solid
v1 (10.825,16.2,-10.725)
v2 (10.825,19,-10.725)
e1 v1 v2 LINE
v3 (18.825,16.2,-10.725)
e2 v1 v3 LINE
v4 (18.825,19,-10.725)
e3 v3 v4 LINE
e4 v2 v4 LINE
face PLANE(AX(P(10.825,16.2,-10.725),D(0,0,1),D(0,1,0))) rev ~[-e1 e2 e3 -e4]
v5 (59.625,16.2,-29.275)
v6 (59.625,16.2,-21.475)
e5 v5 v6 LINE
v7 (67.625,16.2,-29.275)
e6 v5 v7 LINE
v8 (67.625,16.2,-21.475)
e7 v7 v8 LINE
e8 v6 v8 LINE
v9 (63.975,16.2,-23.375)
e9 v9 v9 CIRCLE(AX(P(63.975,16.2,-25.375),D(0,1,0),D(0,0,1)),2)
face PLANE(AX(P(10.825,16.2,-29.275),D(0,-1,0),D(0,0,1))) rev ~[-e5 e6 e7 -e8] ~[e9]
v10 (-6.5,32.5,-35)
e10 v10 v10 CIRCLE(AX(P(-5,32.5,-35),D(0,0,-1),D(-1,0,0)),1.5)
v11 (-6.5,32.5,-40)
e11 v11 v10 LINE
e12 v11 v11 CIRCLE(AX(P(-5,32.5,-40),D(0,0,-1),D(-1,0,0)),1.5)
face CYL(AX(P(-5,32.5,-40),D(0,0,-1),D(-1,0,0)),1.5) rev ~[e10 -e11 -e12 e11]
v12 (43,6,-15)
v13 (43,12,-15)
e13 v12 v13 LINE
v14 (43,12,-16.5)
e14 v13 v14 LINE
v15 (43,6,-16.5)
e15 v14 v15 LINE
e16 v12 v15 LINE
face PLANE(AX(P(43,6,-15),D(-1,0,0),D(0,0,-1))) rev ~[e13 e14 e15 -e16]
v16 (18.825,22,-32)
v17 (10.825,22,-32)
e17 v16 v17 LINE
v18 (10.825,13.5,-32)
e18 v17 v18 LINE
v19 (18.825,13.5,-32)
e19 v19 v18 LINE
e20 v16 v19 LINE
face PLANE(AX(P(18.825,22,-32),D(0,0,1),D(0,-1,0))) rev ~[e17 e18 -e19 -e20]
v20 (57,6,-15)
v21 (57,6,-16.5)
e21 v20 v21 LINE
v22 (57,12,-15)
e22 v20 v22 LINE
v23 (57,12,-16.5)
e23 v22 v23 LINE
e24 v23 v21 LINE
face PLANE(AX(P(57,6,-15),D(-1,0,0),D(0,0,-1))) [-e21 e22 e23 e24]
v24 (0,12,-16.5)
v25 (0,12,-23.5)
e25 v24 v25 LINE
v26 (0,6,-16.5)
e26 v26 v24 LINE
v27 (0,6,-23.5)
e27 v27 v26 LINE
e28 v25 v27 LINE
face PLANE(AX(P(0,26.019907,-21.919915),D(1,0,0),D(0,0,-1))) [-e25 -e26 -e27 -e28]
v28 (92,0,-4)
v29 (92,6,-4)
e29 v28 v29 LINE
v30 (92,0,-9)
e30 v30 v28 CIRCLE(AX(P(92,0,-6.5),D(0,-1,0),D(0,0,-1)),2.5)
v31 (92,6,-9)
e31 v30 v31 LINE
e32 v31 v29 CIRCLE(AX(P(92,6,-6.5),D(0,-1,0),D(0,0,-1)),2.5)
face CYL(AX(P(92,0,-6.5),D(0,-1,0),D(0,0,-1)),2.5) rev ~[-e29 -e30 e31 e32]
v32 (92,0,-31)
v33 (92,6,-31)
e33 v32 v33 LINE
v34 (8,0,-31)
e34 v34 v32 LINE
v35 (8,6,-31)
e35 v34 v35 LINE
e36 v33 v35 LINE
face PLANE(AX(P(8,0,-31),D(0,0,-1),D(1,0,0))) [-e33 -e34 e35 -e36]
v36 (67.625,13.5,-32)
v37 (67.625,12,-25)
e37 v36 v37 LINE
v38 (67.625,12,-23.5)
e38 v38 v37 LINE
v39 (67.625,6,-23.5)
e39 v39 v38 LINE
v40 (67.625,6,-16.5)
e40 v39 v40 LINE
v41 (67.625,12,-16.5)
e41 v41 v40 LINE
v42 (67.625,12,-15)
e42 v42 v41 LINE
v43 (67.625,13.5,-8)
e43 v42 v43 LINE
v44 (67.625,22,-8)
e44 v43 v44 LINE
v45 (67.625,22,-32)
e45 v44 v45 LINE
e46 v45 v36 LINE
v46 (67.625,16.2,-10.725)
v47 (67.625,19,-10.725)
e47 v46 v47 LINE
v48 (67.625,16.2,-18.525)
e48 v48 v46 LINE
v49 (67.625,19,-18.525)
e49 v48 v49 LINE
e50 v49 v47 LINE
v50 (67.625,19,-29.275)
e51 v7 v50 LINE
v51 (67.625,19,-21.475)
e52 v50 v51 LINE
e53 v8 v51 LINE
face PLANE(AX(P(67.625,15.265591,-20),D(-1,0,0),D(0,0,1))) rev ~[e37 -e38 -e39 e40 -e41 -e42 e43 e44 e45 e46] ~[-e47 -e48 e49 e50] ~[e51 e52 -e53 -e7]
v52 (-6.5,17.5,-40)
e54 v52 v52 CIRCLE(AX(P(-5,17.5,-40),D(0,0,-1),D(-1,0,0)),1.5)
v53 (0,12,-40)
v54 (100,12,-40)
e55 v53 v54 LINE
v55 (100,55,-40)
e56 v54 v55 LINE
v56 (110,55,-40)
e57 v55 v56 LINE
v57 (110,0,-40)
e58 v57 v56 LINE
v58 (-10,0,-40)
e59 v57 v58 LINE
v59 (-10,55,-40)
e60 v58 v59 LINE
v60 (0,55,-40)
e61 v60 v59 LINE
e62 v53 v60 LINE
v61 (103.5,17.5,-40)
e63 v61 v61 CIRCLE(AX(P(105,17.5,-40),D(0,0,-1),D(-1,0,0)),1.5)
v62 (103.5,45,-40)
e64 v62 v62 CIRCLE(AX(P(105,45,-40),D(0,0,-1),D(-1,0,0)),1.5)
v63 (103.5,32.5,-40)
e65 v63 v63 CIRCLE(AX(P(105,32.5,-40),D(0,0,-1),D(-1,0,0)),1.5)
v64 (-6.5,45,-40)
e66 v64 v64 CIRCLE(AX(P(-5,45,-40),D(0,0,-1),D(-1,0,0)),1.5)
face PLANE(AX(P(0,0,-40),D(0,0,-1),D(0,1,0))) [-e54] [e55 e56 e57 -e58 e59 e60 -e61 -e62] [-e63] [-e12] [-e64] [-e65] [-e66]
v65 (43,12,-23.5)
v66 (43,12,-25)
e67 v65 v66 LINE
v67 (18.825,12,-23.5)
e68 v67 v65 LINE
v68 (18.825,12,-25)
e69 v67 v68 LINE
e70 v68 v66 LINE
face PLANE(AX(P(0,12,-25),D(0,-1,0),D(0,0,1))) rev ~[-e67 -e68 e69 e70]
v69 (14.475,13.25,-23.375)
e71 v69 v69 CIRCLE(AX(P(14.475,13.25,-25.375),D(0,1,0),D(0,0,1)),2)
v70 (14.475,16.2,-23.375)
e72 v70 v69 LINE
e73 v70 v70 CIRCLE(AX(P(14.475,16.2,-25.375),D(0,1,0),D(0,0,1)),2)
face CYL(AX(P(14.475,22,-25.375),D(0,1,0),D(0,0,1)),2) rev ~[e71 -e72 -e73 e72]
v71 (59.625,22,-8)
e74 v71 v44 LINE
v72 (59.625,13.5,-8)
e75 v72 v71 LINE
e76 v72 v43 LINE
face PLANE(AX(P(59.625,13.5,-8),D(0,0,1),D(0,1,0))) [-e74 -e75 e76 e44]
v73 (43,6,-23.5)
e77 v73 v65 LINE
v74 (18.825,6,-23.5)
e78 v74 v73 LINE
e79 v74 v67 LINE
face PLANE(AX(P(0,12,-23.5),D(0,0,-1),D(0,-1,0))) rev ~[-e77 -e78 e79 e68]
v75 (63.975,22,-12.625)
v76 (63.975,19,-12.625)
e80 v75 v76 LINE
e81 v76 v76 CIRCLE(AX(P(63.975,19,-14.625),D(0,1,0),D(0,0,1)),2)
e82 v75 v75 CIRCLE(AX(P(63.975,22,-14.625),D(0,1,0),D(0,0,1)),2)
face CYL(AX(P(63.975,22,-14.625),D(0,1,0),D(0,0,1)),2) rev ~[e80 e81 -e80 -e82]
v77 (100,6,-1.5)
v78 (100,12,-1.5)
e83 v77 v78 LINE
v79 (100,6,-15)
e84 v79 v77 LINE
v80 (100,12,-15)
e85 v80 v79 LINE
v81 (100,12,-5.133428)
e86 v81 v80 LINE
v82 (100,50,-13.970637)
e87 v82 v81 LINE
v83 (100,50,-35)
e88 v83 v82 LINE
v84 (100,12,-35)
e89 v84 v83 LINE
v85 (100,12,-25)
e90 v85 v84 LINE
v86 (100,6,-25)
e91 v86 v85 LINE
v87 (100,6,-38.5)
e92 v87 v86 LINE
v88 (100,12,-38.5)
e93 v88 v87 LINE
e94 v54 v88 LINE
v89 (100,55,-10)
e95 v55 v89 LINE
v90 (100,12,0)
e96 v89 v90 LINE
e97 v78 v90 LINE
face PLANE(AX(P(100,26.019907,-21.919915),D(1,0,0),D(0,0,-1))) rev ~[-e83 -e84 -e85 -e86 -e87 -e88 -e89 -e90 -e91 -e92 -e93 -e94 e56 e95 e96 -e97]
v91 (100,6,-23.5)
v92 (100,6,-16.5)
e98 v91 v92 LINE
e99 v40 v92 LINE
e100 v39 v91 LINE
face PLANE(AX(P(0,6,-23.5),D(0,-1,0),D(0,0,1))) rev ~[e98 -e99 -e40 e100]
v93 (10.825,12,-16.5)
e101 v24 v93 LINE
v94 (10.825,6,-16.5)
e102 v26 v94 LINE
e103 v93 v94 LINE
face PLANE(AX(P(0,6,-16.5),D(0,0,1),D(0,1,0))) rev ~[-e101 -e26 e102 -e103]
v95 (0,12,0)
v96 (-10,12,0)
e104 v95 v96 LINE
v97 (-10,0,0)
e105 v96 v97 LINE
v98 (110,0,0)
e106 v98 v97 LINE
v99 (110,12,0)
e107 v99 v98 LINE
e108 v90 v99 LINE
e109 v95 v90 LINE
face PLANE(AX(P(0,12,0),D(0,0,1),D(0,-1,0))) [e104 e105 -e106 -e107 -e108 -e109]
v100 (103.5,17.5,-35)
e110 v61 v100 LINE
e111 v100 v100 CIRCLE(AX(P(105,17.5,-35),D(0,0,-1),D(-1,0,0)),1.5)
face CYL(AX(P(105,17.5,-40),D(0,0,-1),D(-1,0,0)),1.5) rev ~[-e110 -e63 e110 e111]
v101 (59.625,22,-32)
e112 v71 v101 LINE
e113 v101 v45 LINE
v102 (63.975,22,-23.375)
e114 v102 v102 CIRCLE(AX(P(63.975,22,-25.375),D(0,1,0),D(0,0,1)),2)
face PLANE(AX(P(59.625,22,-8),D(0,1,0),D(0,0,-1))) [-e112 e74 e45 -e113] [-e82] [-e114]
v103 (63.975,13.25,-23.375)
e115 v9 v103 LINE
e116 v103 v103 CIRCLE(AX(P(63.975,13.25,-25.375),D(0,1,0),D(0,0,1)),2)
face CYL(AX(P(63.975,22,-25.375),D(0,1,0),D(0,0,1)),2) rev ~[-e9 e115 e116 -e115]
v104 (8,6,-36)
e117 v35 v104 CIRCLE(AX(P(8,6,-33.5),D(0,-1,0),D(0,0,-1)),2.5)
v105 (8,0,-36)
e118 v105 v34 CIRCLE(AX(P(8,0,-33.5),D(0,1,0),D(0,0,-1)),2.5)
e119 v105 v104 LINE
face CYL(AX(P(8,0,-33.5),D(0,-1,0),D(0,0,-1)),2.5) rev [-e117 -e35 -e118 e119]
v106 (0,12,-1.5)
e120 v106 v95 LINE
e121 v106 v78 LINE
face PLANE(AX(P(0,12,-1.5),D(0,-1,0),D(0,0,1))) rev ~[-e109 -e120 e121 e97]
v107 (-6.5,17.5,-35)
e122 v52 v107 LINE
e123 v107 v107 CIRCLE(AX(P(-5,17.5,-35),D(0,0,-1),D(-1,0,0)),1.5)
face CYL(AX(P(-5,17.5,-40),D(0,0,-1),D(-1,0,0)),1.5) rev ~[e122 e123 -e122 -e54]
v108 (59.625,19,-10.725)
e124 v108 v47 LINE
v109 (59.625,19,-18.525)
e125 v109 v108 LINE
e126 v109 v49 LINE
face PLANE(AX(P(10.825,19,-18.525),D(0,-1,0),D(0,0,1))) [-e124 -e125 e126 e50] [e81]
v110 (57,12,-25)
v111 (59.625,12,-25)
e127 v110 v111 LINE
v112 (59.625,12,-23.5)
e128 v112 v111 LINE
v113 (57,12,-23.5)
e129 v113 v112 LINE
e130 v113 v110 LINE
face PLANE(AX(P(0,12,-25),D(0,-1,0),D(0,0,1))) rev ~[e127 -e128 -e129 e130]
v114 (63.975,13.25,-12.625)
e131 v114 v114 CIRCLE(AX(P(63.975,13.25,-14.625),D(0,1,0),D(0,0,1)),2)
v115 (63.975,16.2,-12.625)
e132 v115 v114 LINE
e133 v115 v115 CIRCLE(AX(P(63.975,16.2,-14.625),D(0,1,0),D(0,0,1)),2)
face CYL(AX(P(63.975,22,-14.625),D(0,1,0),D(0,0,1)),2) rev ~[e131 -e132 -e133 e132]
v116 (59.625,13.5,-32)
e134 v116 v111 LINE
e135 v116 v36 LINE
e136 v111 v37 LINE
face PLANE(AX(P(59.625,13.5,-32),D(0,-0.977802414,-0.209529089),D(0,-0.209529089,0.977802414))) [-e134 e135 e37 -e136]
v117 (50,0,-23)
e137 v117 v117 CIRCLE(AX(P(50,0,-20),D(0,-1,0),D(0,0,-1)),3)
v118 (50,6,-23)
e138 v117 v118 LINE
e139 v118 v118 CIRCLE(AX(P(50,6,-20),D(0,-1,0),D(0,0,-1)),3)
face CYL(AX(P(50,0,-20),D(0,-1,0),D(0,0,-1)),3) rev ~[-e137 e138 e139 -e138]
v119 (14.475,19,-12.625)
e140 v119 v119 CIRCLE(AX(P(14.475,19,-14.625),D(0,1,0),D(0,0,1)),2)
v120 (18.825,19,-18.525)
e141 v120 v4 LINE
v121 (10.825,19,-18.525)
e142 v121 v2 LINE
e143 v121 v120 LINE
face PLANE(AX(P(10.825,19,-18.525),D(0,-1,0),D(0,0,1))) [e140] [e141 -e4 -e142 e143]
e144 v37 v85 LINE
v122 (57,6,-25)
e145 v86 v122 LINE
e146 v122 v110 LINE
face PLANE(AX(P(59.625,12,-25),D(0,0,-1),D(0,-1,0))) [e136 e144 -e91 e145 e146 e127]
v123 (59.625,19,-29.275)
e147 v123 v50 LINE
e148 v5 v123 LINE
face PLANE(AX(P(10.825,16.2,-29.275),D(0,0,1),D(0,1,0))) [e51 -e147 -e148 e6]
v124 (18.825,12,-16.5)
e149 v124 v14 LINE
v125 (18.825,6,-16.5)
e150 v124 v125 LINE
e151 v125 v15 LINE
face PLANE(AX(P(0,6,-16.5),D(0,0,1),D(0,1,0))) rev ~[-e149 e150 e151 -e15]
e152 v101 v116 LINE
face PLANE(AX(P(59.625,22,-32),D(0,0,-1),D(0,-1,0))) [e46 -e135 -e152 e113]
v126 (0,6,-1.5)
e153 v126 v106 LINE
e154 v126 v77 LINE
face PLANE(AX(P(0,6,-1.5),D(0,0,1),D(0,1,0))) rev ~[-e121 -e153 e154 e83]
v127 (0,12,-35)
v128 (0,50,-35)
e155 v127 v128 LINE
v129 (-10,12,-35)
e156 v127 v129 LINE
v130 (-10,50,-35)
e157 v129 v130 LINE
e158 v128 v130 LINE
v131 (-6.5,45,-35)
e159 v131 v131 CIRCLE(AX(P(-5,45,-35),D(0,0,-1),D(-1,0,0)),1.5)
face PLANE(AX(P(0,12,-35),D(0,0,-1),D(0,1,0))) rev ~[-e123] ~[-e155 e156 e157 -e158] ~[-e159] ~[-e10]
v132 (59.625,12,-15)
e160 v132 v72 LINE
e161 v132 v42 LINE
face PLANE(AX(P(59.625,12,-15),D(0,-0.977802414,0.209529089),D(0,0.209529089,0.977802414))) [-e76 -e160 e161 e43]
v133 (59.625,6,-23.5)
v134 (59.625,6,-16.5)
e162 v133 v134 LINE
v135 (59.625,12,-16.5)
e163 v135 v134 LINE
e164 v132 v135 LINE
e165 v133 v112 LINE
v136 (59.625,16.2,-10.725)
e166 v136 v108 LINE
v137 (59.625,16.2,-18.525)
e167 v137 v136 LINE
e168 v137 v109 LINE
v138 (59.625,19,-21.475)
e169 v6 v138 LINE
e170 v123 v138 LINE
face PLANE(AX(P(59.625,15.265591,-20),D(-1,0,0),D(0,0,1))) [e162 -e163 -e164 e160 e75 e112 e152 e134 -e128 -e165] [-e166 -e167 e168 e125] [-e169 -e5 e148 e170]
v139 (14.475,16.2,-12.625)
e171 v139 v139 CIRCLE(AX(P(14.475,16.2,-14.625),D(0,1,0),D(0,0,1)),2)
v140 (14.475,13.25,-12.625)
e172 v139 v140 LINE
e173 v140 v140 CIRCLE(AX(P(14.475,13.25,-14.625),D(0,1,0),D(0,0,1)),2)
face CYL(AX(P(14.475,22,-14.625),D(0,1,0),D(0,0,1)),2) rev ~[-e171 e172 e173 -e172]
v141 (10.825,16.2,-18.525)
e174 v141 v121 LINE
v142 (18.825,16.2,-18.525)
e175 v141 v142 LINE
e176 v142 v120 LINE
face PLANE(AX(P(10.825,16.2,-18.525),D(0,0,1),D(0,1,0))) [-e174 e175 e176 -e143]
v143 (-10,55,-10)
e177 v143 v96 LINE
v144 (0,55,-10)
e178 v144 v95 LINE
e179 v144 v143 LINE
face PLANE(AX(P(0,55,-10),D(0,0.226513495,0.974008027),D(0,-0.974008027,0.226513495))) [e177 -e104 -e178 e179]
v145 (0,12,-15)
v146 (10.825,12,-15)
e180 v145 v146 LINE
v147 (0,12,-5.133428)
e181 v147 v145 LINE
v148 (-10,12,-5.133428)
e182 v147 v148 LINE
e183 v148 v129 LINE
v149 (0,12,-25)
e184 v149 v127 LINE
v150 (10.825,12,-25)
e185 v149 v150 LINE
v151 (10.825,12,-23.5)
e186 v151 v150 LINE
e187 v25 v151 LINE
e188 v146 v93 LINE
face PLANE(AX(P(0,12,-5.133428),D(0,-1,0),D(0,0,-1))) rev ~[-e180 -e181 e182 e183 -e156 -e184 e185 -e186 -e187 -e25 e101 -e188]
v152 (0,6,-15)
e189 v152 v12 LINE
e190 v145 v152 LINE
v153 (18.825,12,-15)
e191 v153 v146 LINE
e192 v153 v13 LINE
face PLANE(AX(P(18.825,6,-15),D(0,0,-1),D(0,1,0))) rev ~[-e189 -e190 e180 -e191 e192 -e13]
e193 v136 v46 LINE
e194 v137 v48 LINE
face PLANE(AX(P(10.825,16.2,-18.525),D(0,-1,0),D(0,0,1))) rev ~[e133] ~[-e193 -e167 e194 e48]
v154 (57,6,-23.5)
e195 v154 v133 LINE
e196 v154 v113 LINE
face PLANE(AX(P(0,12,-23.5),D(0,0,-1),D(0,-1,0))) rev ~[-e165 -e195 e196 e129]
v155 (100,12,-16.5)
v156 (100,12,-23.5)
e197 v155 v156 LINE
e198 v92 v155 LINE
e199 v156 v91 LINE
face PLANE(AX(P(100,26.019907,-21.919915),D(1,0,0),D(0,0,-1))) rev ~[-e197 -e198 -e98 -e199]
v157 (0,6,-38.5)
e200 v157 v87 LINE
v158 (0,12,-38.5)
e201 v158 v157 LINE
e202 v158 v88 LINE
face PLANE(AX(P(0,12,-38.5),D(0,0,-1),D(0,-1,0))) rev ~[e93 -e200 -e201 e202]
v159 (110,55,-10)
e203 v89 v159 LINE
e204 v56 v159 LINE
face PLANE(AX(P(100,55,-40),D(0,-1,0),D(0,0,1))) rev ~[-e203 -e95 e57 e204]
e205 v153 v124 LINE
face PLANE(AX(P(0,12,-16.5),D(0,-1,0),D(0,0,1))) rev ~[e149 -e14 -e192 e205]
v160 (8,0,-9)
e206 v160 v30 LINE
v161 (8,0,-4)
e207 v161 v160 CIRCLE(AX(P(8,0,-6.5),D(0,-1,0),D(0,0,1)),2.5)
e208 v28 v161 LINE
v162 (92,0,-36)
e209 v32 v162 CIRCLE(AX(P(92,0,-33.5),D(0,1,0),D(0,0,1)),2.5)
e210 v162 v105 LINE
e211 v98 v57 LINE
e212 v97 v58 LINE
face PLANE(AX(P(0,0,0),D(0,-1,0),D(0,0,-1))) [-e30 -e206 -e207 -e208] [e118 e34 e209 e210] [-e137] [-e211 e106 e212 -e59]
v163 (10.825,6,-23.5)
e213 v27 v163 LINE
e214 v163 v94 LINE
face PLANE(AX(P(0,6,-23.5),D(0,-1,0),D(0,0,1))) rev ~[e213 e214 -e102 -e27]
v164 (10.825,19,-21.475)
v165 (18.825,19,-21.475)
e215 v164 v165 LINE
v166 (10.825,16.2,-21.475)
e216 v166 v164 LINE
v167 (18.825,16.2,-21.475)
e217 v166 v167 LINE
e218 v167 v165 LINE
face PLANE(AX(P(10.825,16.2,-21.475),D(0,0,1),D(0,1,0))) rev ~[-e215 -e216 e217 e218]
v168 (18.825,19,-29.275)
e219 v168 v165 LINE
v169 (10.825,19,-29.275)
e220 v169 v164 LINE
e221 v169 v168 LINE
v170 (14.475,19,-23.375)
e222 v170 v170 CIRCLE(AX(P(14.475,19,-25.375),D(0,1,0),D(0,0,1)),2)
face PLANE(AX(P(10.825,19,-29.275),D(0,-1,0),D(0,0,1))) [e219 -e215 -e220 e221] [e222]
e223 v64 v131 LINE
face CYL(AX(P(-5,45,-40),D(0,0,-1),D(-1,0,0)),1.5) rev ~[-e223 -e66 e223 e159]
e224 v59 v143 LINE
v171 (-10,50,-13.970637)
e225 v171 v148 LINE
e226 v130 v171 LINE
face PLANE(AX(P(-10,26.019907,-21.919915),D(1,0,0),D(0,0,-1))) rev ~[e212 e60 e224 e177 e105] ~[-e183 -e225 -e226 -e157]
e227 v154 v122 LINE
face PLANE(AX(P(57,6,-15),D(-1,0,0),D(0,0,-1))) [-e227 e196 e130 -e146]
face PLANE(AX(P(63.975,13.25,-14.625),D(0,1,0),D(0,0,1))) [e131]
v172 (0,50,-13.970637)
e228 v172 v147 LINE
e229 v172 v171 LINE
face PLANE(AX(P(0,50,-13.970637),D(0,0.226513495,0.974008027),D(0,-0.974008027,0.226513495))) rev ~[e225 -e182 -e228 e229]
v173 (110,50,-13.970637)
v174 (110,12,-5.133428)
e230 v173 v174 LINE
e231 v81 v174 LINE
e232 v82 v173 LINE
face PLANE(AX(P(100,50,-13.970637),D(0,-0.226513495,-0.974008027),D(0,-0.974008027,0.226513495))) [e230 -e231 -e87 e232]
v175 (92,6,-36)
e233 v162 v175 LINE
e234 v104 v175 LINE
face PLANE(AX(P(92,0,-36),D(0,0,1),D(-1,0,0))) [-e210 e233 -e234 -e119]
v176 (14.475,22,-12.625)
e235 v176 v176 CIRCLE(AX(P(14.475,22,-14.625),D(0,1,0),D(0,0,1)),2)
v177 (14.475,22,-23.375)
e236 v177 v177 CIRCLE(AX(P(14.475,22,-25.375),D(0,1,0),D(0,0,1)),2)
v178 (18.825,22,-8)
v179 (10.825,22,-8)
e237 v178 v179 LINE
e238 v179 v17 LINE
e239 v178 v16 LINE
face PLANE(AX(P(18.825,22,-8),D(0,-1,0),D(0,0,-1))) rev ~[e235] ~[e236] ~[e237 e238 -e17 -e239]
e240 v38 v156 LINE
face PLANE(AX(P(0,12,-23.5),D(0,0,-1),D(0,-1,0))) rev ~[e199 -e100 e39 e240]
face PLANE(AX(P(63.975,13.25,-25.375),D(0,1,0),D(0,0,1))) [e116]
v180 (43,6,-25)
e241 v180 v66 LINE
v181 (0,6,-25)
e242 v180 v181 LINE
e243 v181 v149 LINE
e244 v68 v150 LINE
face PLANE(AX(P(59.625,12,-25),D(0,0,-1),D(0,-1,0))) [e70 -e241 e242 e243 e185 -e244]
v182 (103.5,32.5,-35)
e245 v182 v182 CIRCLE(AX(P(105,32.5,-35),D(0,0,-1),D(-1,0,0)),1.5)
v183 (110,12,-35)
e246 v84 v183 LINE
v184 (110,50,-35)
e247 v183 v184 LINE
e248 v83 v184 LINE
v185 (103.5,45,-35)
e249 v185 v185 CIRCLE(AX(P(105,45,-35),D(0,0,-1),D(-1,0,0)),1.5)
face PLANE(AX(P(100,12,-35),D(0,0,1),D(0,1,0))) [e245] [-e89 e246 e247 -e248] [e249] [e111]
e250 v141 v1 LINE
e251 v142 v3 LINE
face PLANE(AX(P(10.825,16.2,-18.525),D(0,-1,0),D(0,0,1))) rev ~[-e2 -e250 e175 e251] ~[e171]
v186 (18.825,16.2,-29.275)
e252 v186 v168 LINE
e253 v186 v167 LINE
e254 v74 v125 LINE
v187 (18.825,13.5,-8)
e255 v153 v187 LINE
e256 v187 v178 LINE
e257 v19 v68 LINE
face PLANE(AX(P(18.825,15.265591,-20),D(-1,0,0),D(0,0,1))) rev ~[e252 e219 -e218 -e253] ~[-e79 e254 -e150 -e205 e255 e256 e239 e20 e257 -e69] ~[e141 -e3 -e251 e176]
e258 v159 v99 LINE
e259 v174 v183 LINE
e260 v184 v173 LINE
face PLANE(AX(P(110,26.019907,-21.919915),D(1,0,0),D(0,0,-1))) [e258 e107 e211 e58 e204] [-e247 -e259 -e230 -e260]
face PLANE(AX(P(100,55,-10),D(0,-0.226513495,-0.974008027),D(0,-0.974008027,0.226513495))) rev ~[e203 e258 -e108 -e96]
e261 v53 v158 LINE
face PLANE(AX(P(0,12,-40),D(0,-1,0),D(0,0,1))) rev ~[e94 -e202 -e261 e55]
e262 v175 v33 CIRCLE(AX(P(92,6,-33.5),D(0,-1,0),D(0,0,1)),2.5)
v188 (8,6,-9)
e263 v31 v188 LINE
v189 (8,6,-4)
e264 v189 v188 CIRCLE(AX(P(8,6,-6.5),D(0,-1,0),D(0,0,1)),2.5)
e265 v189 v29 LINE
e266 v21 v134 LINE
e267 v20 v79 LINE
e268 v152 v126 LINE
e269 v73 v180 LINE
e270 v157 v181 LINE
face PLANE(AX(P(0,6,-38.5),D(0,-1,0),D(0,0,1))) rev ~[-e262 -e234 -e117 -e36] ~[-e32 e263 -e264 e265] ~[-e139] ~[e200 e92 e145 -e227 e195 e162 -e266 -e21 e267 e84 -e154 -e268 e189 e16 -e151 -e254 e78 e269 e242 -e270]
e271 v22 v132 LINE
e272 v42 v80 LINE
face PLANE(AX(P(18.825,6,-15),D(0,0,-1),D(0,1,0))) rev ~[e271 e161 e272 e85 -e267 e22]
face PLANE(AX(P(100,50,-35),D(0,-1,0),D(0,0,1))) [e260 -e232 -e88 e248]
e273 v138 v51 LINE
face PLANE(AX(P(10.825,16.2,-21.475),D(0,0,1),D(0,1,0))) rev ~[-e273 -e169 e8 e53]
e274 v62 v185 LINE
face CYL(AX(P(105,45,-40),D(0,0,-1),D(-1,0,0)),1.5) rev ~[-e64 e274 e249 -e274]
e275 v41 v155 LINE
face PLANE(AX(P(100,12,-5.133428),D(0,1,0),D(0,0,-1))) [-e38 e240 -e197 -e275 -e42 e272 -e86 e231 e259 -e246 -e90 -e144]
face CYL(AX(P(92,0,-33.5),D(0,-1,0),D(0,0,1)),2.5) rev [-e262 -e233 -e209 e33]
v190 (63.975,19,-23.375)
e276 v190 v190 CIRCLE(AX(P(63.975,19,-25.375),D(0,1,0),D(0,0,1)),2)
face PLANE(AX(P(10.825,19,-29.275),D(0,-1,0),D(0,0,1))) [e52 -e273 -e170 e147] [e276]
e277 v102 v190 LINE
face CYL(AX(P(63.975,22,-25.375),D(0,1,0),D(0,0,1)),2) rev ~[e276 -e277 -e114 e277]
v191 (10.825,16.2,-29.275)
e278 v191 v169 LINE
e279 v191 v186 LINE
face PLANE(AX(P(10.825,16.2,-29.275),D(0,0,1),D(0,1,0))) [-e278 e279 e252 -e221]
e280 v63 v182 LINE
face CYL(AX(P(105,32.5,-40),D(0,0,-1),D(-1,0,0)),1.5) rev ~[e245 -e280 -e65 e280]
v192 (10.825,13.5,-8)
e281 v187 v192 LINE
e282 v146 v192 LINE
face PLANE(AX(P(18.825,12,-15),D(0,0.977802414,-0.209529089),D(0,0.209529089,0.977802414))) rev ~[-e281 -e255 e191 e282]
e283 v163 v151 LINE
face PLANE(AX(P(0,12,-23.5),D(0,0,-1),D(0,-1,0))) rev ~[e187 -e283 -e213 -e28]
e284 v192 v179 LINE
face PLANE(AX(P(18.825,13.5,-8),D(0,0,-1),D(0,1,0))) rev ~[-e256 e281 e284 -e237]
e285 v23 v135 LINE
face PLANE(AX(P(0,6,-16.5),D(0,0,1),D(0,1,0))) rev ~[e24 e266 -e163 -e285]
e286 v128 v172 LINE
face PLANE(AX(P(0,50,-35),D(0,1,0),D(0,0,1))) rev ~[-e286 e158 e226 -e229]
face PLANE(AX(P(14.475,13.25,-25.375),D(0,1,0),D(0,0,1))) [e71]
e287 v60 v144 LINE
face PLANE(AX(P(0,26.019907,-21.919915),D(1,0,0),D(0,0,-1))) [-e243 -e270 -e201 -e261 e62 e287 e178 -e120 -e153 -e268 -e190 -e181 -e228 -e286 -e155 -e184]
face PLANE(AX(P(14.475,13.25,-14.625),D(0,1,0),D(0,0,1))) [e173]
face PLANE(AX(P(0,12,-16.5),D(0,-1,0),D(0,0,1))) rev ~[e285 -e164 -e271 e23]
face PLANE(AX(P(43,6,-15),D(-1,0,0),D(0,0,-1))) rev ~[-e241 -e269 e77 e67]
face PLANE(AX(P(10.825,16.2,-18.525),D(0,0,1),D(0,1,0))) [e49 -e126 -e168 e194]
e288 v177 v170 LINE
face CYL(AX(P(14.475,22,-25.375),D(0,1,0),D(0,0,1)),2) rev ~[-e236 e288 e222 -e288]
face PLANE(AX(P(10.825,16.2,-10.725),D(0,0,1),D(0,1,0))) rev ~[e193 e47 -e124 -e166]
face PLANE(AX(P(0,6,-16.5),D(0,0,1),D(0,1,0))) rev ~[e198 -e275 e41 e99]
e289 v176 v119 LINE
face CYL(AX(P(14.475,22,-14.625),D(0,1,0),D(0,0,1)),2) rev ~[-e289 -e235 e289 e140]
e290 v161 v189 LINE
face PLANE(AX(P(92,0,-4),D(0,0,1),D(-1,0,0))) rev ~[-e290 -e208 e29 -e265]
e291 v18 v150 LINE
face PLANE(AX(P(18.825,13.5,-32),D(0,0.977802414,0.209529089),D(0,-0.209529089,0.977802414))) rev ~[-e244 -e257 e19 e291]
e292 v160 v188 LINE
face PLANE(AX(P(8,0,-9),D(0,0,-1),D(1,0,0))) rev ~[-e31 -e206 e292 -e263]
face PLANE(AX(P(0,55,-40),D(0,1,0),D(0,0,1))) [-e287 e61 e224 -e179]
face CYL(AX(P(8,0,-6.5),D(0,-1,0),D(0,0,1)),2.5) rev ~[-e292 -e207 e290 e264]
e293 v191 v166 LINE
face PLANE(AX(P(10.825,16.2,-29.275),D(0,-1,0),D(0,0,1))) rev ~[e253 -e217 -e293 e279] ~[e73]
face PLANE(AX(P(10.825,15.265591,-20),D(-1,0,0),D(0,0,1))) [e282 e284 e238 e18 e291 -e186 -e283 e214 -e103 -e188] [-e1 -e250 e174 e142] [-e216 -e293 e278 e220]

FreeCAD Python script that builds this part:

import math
import FreeCAD as App
import Part
import Sketcher
Q = App.Units.Quantity


def add_polygon(sketch, points):
    """Adds a closed chain of lines whose ends are joined by coincident constraints."""
    first, n = sketch.GeometryCount, len(points)
    for a, b in zip(points, points[1:] + points[:1]):
        sketch.addGeometry(Part.LineSegment(App.Vector(*a, 0), App.Vector(*b, 0)), False)
    for i in range(n):
        sketch.addConstraint(Sketcher.Constraint("Coincident", first + i, 2, first + (i + 1) % n, 1))

doc = App.newDocument("Part")
body = doc.addObject("PartDesign::Body", "Body")

sketch1 = doc.addObject("Sketcher::SketchObject", "Sketch")
body.addObject(sketch1)
sketch1.AttachmentSupport = (doc.YZ_Plane, [""])
sketch1.MapMode = "FlatFace"
add_polygon(sketch1, [(0, 0), (0, -40), (12, -40), (12, -38.5), (6, -38.5), (6, -25), (12, -25), (12, -23.5), (6, -23.5), (6, -16.5), (12, -16.5), (12, -15), (6, -15), (6, -1.5), (12, -1.5), (12, 0)])
sketch1.addConstraint([
    Sketcher.Constraint("Vertical", 0),
    Sketcher.Constraint("Horizontal", 1),
    Sketcher.Constraint("Vertical", 2),
    Sketcher.Constraint("Horizontal", 3),
    Sketcher.Constraint("Vertical", 4),
    Sketcher.Constraint("Horizontal", 5),
    Sketcher.Constraint("Vertical", 6),
    Sketcher.Constraint("Horizontal", 7),
    Sketcher.Constraint("Vertical", 8),
    Sketcher.Constraint("Horizontal", 9),
    Sketcher.Constraint("Vertical", 10),
    Sketcher.Constraint("Horizontal", 11),
    Sketcher.Constraint("Vertical", 12),
    Sketcher.Constraint("Horizontal", 13),
    Sketcher.Constraint("Vertical", 14),
    Sketcher.Constraint("Horizontal", 15),
    Sketcher.Constraint("Coincident", 15, 2, -1, 1),
    Sketcher.Constraint("Vertical", 2, 2, 5, 2),
    Sketcher.Constraint("Vertical", 4, 2, 7, 2),
    Sketcher.Constraint("Vertical", 6, 2, 9, 2),
    Sketcher.Constraint("Vertical", 8, 2, 11, 2),
    Sketcher.Constraint("Vertical", 10, 2, 13, 2),
    Sketcher.Constraint("Equal", 2, 6),
    Sketcher.Constraint("Equal", 6, 10),
    Sketcher.Constraint("Equal", 4, 12),
    Sketcher.Constraint("Equal", 10, 14),
    Sketcher.Constraint("DistanceX", 1, 1, 1, 2, Q("12 mm")),
    Sketcher.Constraint("DistanceX", 3, 2, 3, 1, Q("6 mm")),
    Sketcher.Constraint("DistanceY", 0, 2, 0, 1, Q("40 mm")),
    Sketcher.Constraint("DistanceY", 8, 1, 8, 2, Q("7 mm")),
    Sketcher.Constraint("DistanceY", 2, 1, 2, 2, Q("1.5 mm")),
])
pad1 = doc.addObject("PartDesign::Pad", "Pad")
body.addObject(pad1)
pad1.Profile = sketch1
pad1.Length = 100

sketch2 = doc.addObject("Sketcher::SketchObject", "Sketch001")
body.addObject(sketch2)
sketch2.AttachmentSupport = (doc.YZ_Plane, [""])
sketch2.MapMode = "FlatFace"
sketch2.AttachmentOffset = App.Placement(App.Vector(0, 0, 18.825), App.Rotation())
add_polygon(sketch2, [(12, -15), (6, -15), (6, -25), (12, -25), (13.5, -32), (22, -32), (22, -8), (13.5, -8)])
sketch2.addConstraint([
    Sketcher.Constraint("Horizontal", 0),
    Sketcher.Constraint("Vertical", 1),
    Sketcher.Constraint("Horizontal", 2),
    Sketcher.Constraint("Horizontal", 4),
    Sketcher.Constraint("Vertical", 5),
    Sketcher.Constraint("Horizontal", 6),
    Sketcher.Constraint("Vertical", 3, 2, 6, 2),
    Sketcher.Constraint("Vertical", 2, 2, 7, 2),
    Sketcher.Constraint("Equal", 3, 7),
    Sketcher.Constraint("DistanceX", 0, 2, 0, 1, Q("6 mm")),
    Sketcher.Constraint("DistanceY", 1, 2, 1, 1, Q("10 mm")),
    Sketcher.Constraint("DistanceY", 5, 1, 5, 2, Q("24 mm")),
    Sketcher.Constraint("DistanceX", 4, 1, 4, 2, Q("8.5 mm")),
    Sketcher.Constraint("DistanceX", -1, 1, 0, 2, Q("6 mm")),
    Sketcher.Constraint("DistanceY", 0, 2, -1, 1, Q("15 mm")),
    Sketcher.Constraint("DistanceX", -1, 1, 4, 2, Q("22 mm")),
])
pad2 = doc.addObject("PartDesign::Pad", "Pad001")
body.addObject(pad2)
pad2.Profile = sketch2
pad2.Length = 8
pad2.Reversed = True

sketch3 = doc.addObject("Sketcher::SketchObject", "Sketch002")
body.addObject(sketch3)
sketch3.AttachmentSupport = (doc.YZ_Plane, [""])
sketch3.MapMode = "FlatFace"
sketch3.AttachmentOffset = App.Placement(App.Vector(0, 0, 59.625), App.Rotation())
add_polygon(sketch3, [(6, -15), (6, -25), (12, -25), (13.5, -32), (22, -32), (22, -8), (13.5, -8), (12, -15)])
sketch3.addConstraint([
    Sketcher.Constraint("Vertical", 0),
    Sketcher.Constraint("Horizontal", 1),
    Sketcher.Constraint("Horizontal", 3),
    Sketcher.Constraint("Vertical", 4),
    Sketcher.Constraint("Horizontal", 5),
    Sketcher.Constraint("Horizontal", 7),
    Sketcher.Constraint("Vertical", 2, 2, 5, 2),
    Sketcher.Constraint("Vertical", 1, 2, 6, 2),
    Sketcher.Constraint("Equal", 2, 6),
    Sketcher.Constraint("DistanceX", 1, 1, 1, 2, Q("6 mm")),
    Sketcher.Constraint("DistanceY", 0, 2, 0, 1, Q("10 mm")),
    Sketcher.Constraint("DistanceY", 4, 1, 4, 2, Q("24 mm")),
    Sketcher.Constraint("DistanceX", 3, 1, 3, 2, Q("8.5 mm")),
    Sketcher.Constraint("DistanceX", -1, 1, 0, 2, Q("6 mm")),
    Sketcher.Constraint("DistanceY", 0, 2, -1, 1, Q("25 mm")),
    Sketcher.Constraint("DistanceX", -1, 1, 3, 2, Q("22 mm")),
])
pad3 = doc.addObject("PartDesign::Pad", "Pad002")
body.addObject(pad3)
pad3.Profile = sketch3
pad3.Length = 8

sketch4 = doc.addObject("Sketcher::SketchObject", "Sketch003")
body.addObject(sketch4)
sketch4.AttachmentSupport = (doc.XZ_Plane, [""])
sketch4.MapMode = "FlatFace"
sketch4.AttachmentOffset = App.Placement(App.Vector(0, 0, -22), App.Rotation())
sketch4.addGeometry([
    Part.Circle(App.Vector(14.475, -14.625, 0), App.Vector(0, 0, 1), 2),
    Part.Circle(App.Vector(14.475, -25.375, 0), App.Vector(0, 0, 1), 2),
    Part.Circle(App.Vector(63.975, -14.625, 0), App.Vector(0, 0, 1), 2),
    Part.Circle(App.Vector(63.975, -25.375, 0), App.Vector(0, 0, 1), 2),
], False)
sketch4.addConstraint([
    Sketcher.Constraint("Equal", 0, 1),
    Sketcher.Constraint("Equal", 1, 2),
    Sketcher.Constraint("Equal", 2, 3),
    Sketcher.Constraint("Horizontal", 0, 3, 2, 3),
    Sketcher.Constraint("Horizontal", 1, 3, 3, 3),
    Sketcher.Constraint("Vertical", 0, 3, 1, 3),
    Sketcher.Constraint("Vertical", 2, 3, 3, 3),
    Sketcher.Constraint("Diameter", 0, Q("4 mm")),
    Sketcher.Constraint("DistanceX", 0, 3, 2, 3, Q("49.5 mm")),
    Sketcher.Constraint("DistanceY", 1, 3, 0, 3, Q("10.75 mm")),
    Sketcher.Constraint("DistanceX", -1, 1, 0, 3, Q("14.475 mm")),
    Sketcher.Constraint("DistanceY", 0, 3, -1, 1, Q("14.625 mm")),
])
pocket1 = doc.addObject("PartDesign::Pocket", "Pocket")
body.addObject(pocket1)
pocket1.Profile = sketch4
pocket1.Length = 8.75
pocket1.Reversed = True

sketch5 = doc.addObject("Sketcher::SketchObject", "Sketch004")
body.addObject(sketch5)
sketch5.AttachmentSupport = (doc.YZ_Plane, [""])
sketch5.MapMode = "FlatFace"
sketch5.AttachmentOffset = App.Placement(App.Vector(0, 0, 10.825), App.Rotation())
add_polygon(sketch5, [(19, -29.275), (16.2, -29.275), (16.2, -21.475), (19, -21.475)])
add_polygon(sketch5, [(19, -18.525), (16.2, -18.525), (16.2, -10.725), (19, -10.725)])
sketch5.addConstraint([
    Sketcher.Constraint("Horizontal", 0),
    Sketcher.Constraint("Vertical", 1),
    Sketcher.Constraint("Horizontal", 2),
    Sketcher.Constraint("Vertical", 3),
    Sketcher.Constraint("Horizontal", 4),
    Sketcher.Constraint("Vertical", 5),
    Sketcher.Constraint("Horizontal", 6),
    Sketcher.Constraint("Vertical", 7),
    Sketcher.Constraint("Vertical", 1, 2, 4, 2),
    Sketcher.Constraint("Vertical", 3, 2, 6, 2),
    Sketcher.Constraint("Equal", 3, 5),
    Sketcher.Constraint("DistanceX", 0, 2, 0, 1, Q("2.8 mm")),
    Sketcher.Constraint("DistanceY", 1, 1, 1, 2, Q("7.8 mm")),
    Sketcher.Constraint("DistanceX", -1, 1, 2, 2, Q("19 mm")),
    Sketcher.Constraint("DistanceY", 1, 2, 4, 2, Q("2.95 mm")),
    Sketcher.Constraint("DistanceY", 0, 2, -1, 1, Q("29.275 mm")),
])
pocket2 = doc.addObject("PartDesign::Pocket", "Pocket001")
body.addObject(pocket2)
pocket2.Profile = sketch5
pocket2.Type = "ThroughAll"
pocket2.Reversed = True

sketch6 = doc.addObject("Sketcher::SketchObject", "Sketch005")
body.addObject(sketch6)
sketch6.AttachmentSupport = (doc.XZ_Plane, [""])
sketch6.MapMode = "FlatFace"
sketch6.addGeometry(Part.Circle(App.Vector(50, -20, 0), App.Vector(0, 0, 1), 3), False)
sketch6.addConstraint([
    Sketcher.Constraint("Diameter", 0, Q("6 mm")),
    Sketcher.Constraint("DistanceX", -1, 1, 0, 3, Q("50 mm")),
    Sketcher.Constraint("DistanceY", 0, 3, -1, 1, Q("20 mm")),
])
pocket3 = doc.addObject("PartDesign::Pocket", "Pocket002")
body.addObject(pocket3)
pocket3.Profile = sketch6
pocket3.Type = "UpToFirst"

sketch7 = doc.addObject("Sketcher::SketchObject", "Sketch006")
body.addObject(sketch7)
sketch7.AttachmentSupport = (doc.XZ_Plane, [""])
sketch7.MapMode = "FlatFace"
sketch7.addGeometry([
    Part.LineSegment(App.Vector(92, -31, 0), App.Vector(8, -31, 0)),
    Part.ArcOfCircle(Part.Circle(App.Vector(8, -33.5, 0), App.Vector(0, 0, 1), 2.5), math.radians(90), math.radians(270)),
    Part.LineSegment(App.Vector(8, -36, 0), App.Vector(92, -36, 0)),
    Part.ArcOfCircle(Part.Circle(App.Vector(92, -33.5, 0), App.Vector(0, 0, 1), 2.5), math.radians(-90), math.radians(90)),
], False)
sketch7.addConstraint([
    Sketcher.Constraint("Tangent", 0, 2, 1, 1),
    Sketcher.Constraint("Tangent", 1, 2, 2, 1),
    Sketcher.Constraint("Tangent", 2, 2, 3, 1),
    Sketcher.Constraint("Tangent", 3, 2, 0, 1),
    Sketcher.Constraint("Horizontal", 0),
    Sketcher.Constraint("Horizontal", 2),
    Sketcher.Constraint("Radius", 1, Q("2.5 mm")),
    Sketcher.Constraint("DistanceX", 0, 2, 0, 1, Q("84 mm")),
    Sketcher.Constraint("DistanceX", -1, 1, 1, 3, Q("8 mm")),
    Sketcher.Constraint("DistanceY", 0, 2, -1, 1, Q("31 mm")),
])
pocket4 = doc.addObject("PartDesign::Pocket", "Pocket003")
body.addObject(pocket4)
pocket4.Profile = sketch7
pocket4.Type = "UpToFirst"

sketch8 = doc.addObject("Sketcher::SketchObject", "Sketch007")
body.addObject(sketch8)
sketch8.AttachmentSupport = (doc.XZ_Plane, [""])
sketch8.MapMode = "FlatFace"
sketch8.addGeometry([
    Part.LineSegment(App.Vector(92, -4, 0), App.Vector(8, -4, 0)),
    Part.ArcOfCircle(Part.Circle(App.Vector(8, -6.5, 0), App.Vector(0, 0, 1), 2.5), math.radians(90), math.radians(270)),
    Part.LineSegment(App.Vector(8, -9, 0), App.Vector(92, -9, 0)),
    Part.ArcOfCircle(Part.Circle(App.Vector(92, -6.5, 0), App.Vector(0, 0, 1), 2.5), math.radians(-90), math.radians(90)),
], False)
sketch8.addConstraint([
    Sketcher.Constraint("Tangent", 0, 2, 1, 1),
    Sketcher.Constraint("Tangent", 1, 2, 2, 1),
    Sketcher.Constraint("Tangent", 2, 2, 3, 1),
    Sketcher.Constraint("Tangent", 3, 2, 0, 1),
    Sketcher.Constraint("Horizontal", 0),
    Sketcher.Constraint("Horizontal", 2),
    Sketcher.Constraint("Radius", 1, Q("2.5 mm")),
    Sketcher.Constraint("DistanceX", 0, 2, 0, 1, Q("84 mm")),
    Sketcher.Constraint("DistanceX", -1, 1, 1, 3, Q("8 mm")),
    Sketcher.Constraint("DistanceY", 0, 2, -1, 1, Q("4 mm")),
])
pocket5 = doc.addObject("PartDesign::Pocket", "Pocket004")
body.addObject(pocket5)
pocket5.Profile = sketch8
pocket5.Type = "UpToFirst"

sketch9 = doc.addObject("Sketcher::SketchObject", "Sketch008")
body.addObject(sketch9)
sketch9.AttachmentSupport = (doc.XZ_Plane, [""])
sketch9.MapMode = "FlatFace"
sketch9.AttachmentOffset = App.Placement(App.Vector(0, 0, -6), App.Rotation())
add_polygon(sketch9, [(43, -25), (43, -15), (57, -15), (57, -25)])
sketch9.addConstraint([
    Sketcher.Constraint("Vertical", 0),
    Sketcher.Constraint("Horizontal", 1),
    Sketcher.Constraint("Vertical", 2),
    Sketcher.Constraint("Horizontal", 3),
    Sketcher.Constraint("DistanceX", 1, 1, 1, 2, Q("14 mm")),
    Sketcher.Constraint("DistanceY", 0, 1, 0, 2, Q("10 mm")),
    Sketcher.Constraint("DistanceX", -1, 1, 0, 2, Q("43 mm")),
    Sketcher.Constraint("DistanceY", 0, 2, -1, 1, Q("15 mm")),
])
pocket6 = doc.addObject("PartDesign::Pocket", "Pocket005")
body.addObject(pocket6)
pocket6.Profile = sketch9
pocket6.Length = 6

sketch10 = doc.addObject("Sketcher::SketchObject", "Sketch009")
body.addObject(sketch10)
sketch10.AttachmentSupport = (doc.YZ_Plane, [""])
sketch10.MapMode = "FlatFace"
sketch10.AttachmentOffset = App.Placement(App.Vector(0, 0, 100), App.Rotation())
add_polygon(sketch10, [(0, 0), (0, -40), (55, -40), (55, -10), (12, 0)])
add_polygon(sketch10, [(50, -13.970637), (50, -35), (12, -35), (12, -5.133428)])
sketch10.addConstraint([
    Sketcher.Constraint("Vertical", 0),
    Sketcher.Constraint("Horizontal", 1),
    Sketcher.Constraint("Vertical", 2),
    Sketcher.Constraint("Horizontal", 4),
    Sketcher.Constraint("Vertical", 5),
    Sketcher.Constraint("Horizontal", 6),
    Sketcher.Constraint("Vertical", 7),
    Sketcher.Constraint("Coincident", 4, 2, -1, 1),
    Sketcher.Constraint("Parallel", 3, 8),
    Sketcher.Constraint("Vertical", 3, 2, 6, 2),
    Sketcher.Constraint("DistanceX", 1, 1, 1, 2, Q("55 mm")),
    Sketcher.Constraint("DistanceX", 4, 2, 4, 1, Q("12 mm")),
    Sketcher.Constraint("DistanceX", 6, 2, 6, 1, Q("38 mm")),
    Sketcher.Constraint("DistanceY", 0, 2, 0, 1, Q("40 mm")),
    Sketcher.Constraint("DistanceY", 2, 1, 2, 2, Q("30 mm")),
    Sketcher.Constraint("DistanceY", 5, 2, -1, 1, Q("35 mm")),
    Sketcher.Constraint("DistanceY", 5, 2, 5, 1, Q("21.029363 mm")),
])
pad4 = doc.addObject("PartDesign::Pad", "Pad003")
body.addObject(pad4)
pad4.Profile = sketch10
pad4.Length = 10

sketch11 = doc.addObject("Sketcher::SketchObject", "Sketch010")
body.addObject(sketch11)
sketch11.AttachmentSupport = (doc.YZ_Plane, [""])
sketch11.MapMode = "FlatFace"
add_polygon(sketch11, [(55, -40), (0, -40), (0, 0), (12, 0), (55, -10)])
add_polygon(sketch11, [(50, -35), (50, -13.970637), (12, -5.133428), (12, -35)])
sketch11.addConstraint([
    Sketcher.Constraint("Horizontal", 0),
    Sketcher.Constraint("Vertical", 1),
    Sketcher.Constraint("Horizontal", 2),
    Sketcher.Constraint("Vertical", 4),
    Sketcher.Constraint("Vertical", 5),
    Sketcher.Constraint("Vertical", 7),
    Sketcher.Constraint("Horizontal", 8),
    Sketcher.Constraint("Coincident", 1, 2, -1, 1),
    Sketcher.Constraint("Parallel", 3, 6),
    Sketcher.Constraint("Vertical", 2, 2, 6, 2),
    Sketcher.Constraint("DistanceX", 0, 2, 0, 1, Q("55 mm")),
    Sketcher.Constraint("DistanceX", 2, 1, 2, 2, Q("12 mm")),
    Sketcher.Constraint("DistanceX", 8, 1, 8, 2, Q("38 mm")),
    Sketcher.Constraint("DistanceY", 1, 1, 1, 2, Q("40 mm")),
    Sketcher.Constraint("DistanceY", 4, 2, 4, 1, Q("30 mm")),
    Sketcher.Constraint("DistanceY", 7, 2, -1, 1, Q("35 mm")),
    Sketcher.Constraint("DistanceY", 5, 1, 5, 2, Q("21.029363 mm")),
])
pad5 = doc.addObject("PartDesign::Pad", "Pad004")
body.addObject(pad5)
pad5.Profile = sketch11
pad5.Length = 10
pad5.Reversed = True

sketch12 = doc.addObject("Sketcher::SketchObject", "Sketch011")
body.addObject(sketch12)
sketch12.AttachmentSupport = (doc.XY_Plane, [""])
sketch12.MapMode = "FlatFace"
sketch12.AttachmentOffset = App.Placement(App.Vector(0, 0, -40), App.Rotation())
sketch12.addGeometry(Part.Circle(App.Vector(105, 45, 0), App.Vector(0, 0, 1), 1.5), False)
sketch12.addConstraint([
    Sketcher.Constraint("Diameter", 0, Q("3 mm")),
    Sketcher.Constraint("DistanceX", -1, 1, 0, 3, Q("105 mm")),
    Sketcher.Constraint("DistanceY", -1, 1, 0, 3, Q("45 mm")),
])
pocket7 = doc.addObject("PartDesign::Pocket", "Pocket006")
body.addObject(pocket7)
pocket7.Profile = sketch12
pocket7.Type = "UpToFirst"
pocket7.Reversed = True

sketch13 = doc.addObject("Sketcher::SketchObject", "Sketch012")
body.addObject(sketch13)
sketch13.AttachmentSupport = (doc.XY_Plane, [""])
sketch13.MapMode = "FlatFace"
sketch13.AttachmentOffset = App.Placement(App.Vector(0, 0, -40), App.Rotation())
sketch13.addGeometry(Part.Circle(App.Vector(105, 32.5, 0), App.Vector(0, 0, 1), 1.5), False)
sketch13.addConstraint([
    Sketcher.Constraint("Diameter", 0, Q("3 mm")),
    Sketcher.Constraint("DistanceX", -1, 1, 0, 3, Q("105 mm")),
    Sketcher.Constraint("DistanceY", -1, 1, 0, 3, Q("32.5 mm")),
])
pocket8 = doc.addObject("PartDesign::Pocket", "Pocket007")
body.addObject(pocket8)
pocket8.Profile = sketch13
pocket8.Type = "UpToFirst"
pocket8.Reversed = True

sketch14 = doc.addObject("Sketcher::SketchObject", "Sketch013")
body.addObject(sketch14)
sketch14.AttachmentSupport = (doc.XY_Plane, [""])
sketch14.MapMode = "FlatFace"
sketch14.AttachmentOffset = App.Placement(App.Vector(0, 0, -40), App.Rotation())
sketch14.addGeometry(Part.Circle(App.Vector(105, 17.5, 0), App.Vector(0, 0, 1), 1.5), False)
sketch14.addConstraint([
    Sketcher.Constraint("Diameter", 0, Q("3 mm")),
    Sketcher.Constraint("DistanceX", -1, 1, 0, 3, Q("105 mm")),
    Sketcher.Constraint("DistanceY", -1, 1, 0, 3, Q("17.5 mm")),
])
pocket9 = doc.addObject("PartDesign::Pocket", "Pocket008")
body.addObject(pocket9)
pocket9.Profile = sketch14
pocket9.Type = "UpToFirst"
pocket9.Reversed = True

sketch15 = doc.addObject("Sketcher::SketchObject", "Sketch014")
body.addObject(sketch15)
sketch15.AttachmentSupport = (doc.XY_Plane, [""])
sketch15.MapMode = "FlatFace"
sketch15.AttachmentOffset = App.Placement(App.Vector(0, 0, -40), App.Rotation())
sketch15.addGeometry(Part.Circle(App.Vector(-5, 45, 0), App.Vector(0, 0, 1), 1.5), False)
sketch15.addConstraint([
    Sketcher.Constraint("Diameter", 0, Q("3 mm")),
    Sketcher.Constraint("DistanceX", 0, 3, -1, 1, Q("5 mm")),
    Sketcher.Constraint("DistanceY", -1, 1, 0, 3, Q("45 mm")),
])
pocket10 = doc.addObject("PartDesign::Pocket", "Pocket009")
body.addObject(pocket10)
pocket10.Profile = sketch15
pocket10.Type = "UpToFirst"
pocket10.Reversed = True

sketch16 = doc.addObject("Sketcher::SketchObject", "Sketch015")
body.addObject(sketch16)
sketch16.AttachmentSupport = (doc.XY_Plane, [""])
sketch16.MapMode = "FlatFace"
sketch16.AttachmentOffset = App.Placement(App.Vector(0, 0, -40), App.Rotation())
sketch16.addGeometry(Part.Circle(App.Vector(-5, 32.5, 0), App.Vector(0, 0, 1), 1.5), False)
sketch16.addConstraint([
    Sketcher.Constraint("Diameter", 0, Q("3 mm")),
    Sketcher.Constraint("DistanceX", 0, 3, -1, 1, Q("5 mm")),
    Sketcher.Constraint("DistanceY", -1, 1, 0, 3, Q("32.5 mm")),
])
pocket11 = doc.addObject("PartDesign::Pocket", "Pocket010")
body.addObject(pocket11)
pocket11.Profile = sketch16
pocket11.Type = "UpToFirst"
pocket11.Reversed = True

sketch17 = doc.addObject("Sketcher::SketchObject", "Sketch016")
body.addObject(sketch17)
sketch17.AttachmentSupport = (doc.XY_Plane, [""])
sketch17.MapMode = "FlatFace"
sketch17.AttachmentOffset = App.Placement(App.Vector(0, 0, -40), App.Rotation())
sketch17.addGeometry(Part.Circle(App.Vector(-5, 17.5, 0), App.Vector(0, 0, 1), 1.5), False)
sketch17.addConstraint([
    Sketcher.Constraint("Diameter", 0, Q("3 mm")),
    Sketcher.Constraint("DistanceX", 0, 3, -1, 1, Q("5 mm")),
    Sketcher.Constraint("DistanceY", -1, 1, 0, 3, Q("17.5 mm")),
])
pocket12 = doc.addObject("PartDesign::Pocket", "Pocket011")
body.addObject(pocket12)
pocket12.Profile = sketch17
pocket12.Type = "UpToFirst"
pocket12.Reversed = True

doc.recompute()
